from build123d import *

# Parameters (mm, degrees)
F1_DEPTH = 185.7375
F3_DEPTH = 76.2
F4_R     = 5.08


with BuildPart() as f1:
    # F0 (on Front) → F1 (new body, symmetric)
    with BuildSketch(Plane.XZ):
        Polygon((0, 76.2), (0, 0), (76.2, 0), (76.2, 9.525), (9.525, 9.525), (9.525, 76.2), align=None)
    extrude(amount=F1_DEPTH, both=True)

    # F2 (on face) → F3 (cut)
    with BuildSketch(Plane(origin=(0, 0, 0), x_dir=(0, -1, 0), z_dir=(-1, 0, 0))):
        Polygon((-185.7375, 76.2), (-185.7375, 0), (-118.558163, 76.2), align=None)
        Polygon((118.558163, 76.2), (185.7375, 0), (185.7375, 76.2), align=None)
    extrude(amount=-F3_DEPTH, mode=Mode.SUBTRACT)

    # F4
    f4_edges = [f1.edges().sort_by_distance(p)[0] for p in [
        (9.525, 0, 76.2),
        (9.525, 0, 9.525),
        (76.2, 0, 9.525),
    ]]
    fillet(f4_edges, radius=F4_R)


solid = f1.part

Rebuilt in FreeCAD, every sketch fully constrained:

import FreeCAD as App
import Part
import Sketcher

V = App.Vector
Q = App.Units.Quantity


def edges_at(feature, points):
    """Names of the edges that pass closest to the given points."""
    edges = feature.Shape.Edges
    near = lambda p: min(range(len(edges)), key=lambda i: edges[i].distToShape(Part.Vertex(*p))[0])
    return sorted({f"Edge{near(p) + 1}" for p in points})

doc = App.newDocument("Part")
body = doc.addObject("PartDesign::Body", "Body")

# Sketch on XZ plane
sketch1 = doc.addObject("Sketcher::SketchObject", "Sketch")
body.addObject(sketch1)
sketch1.AttachmentSupport = (doc.XZ_Plane, [""])
sketch1.MapMode = "FlatFace"
sketch1.addGeometry([
    Part.LineSegment(V(0, 76, 0), V(0, 0, 0)),  # 0
    Part.LineSegment(V(0, 0, 0), V(76, 0, 0)),  # 1
    Part.LineSegment(V(76, 0, 0), V(76, 10, 0)),  # 2
    Part.LineSegment(V(76, 10, 0), V(10, 10, 0)),  # 3
    Part.LineSegment(V(10, 10, 0), V(10, 76, 0)),  # 4
    Part.LineSegment(V(10, 76, 0), V(0, 76, 0)),  # 5
], False)
sketch1.addConstraint([
    Sketcher.Constraint("Coincident", 0, 2, 1, 1),
    Sketcher.Constraint("Coincident", 1, 2, 2, 1),
    Sketcher.Constraint("Coincident", 2, 2, 3, 1),
    Sketcher.Constraint("Coincident", 3, 2, 4, 1),
    Sketcher.Constraint("Coincident", 4, 2, 5, 1),
    Sketcher.Constraint("Coincident", 5, 2, 0, 1),
    Sketcher.Constraint("Vertical", 0),
    Sketcher.Constraint("Horizontal", 1),
    Sketcher.Constraint("Vertical", 2),
    Sketcher.Constraint("Horizontal", 3),
    Sketcher.Constraint("Vertical", 4),
    Sketcher.Constraint("Horizontal", 5),
    Sketcher.Constraint("Coincident", 0, 2, -1, 1),
    Sketcher.Constraint("Equal", 1, 0),
    Sketcher.Constraint("Equal", 5, 2),
    Sketcher.Constraint("DistanceX", 1, 1, 1, 2, Q("3 in")),
    Sketcher.Constraint("DistanceX", 3, 2, 3, 1, Q("2.625 in")),
])
pad1 = doc.addObject("PartDesign::Pad", "Pad")
body.addObject(pad1)
pad1.Profile = sketch1
pad1.Length = Q("14.625 in")
pad1.Midplane = True

# Sketch on YZ plane
sketch2 = doc.addObject("Sketcher::SketchObject", "Sketch001")
body.addObject(sketch2)
sketch2.AttachmentSupport = (doc.YZ_Plane, [""])
sketch2.MapMode = "FlatFace"
sketch2.addGeometry([
    Part.LineSegment(V(186, 76, 0), V(186, 0, 0)),  # 0
    Part.LineSegment(V(186, 0, 0), V(119, 76, 0)),  # 1
    Part.LineSegment(V(119, 76, 0), V(186, 76, 0)),  # 2
    Part.LineSegment(V(-119, 76, 0), V(-186, 0, 0)),  # 3
    Part.LineSegment(V(-186, 0, 0), V(-186, 76, 0)),  # 4
    Part.LineSegment(V(-186, 76, 0), V(-119, 76, 0)),  # 5
], False)
sketch2.addConstraint([
    Sketcher.Constraint("Coincident", 0, 2, 1, 1),
    Sketcher.Constraint("Coincident", 1, 2, 2, 1),
    Sketcher.Constraint("Coincident", 2, 2, 0, 1),
    Sketcher.Constraint("Coincident", 3, 2, 4, 1),
    Sketcher.Constraint("Coincident", 4, 2, 5, 1),
    Sketcher.Constraint("Coincident", 5, 2, 3, 1),
    Sketcher.Constraint("Vertical", 0),
    Sketcher.Constraint("Horizontal", 2),
    Sketcher.Constraint("Vertical", 4),
    Sketcher.Constraint("Horizontal", 5),
    Sketcher.Constraint("Symmetric", 0, 2, 3, 2, -1, 1),
    Sketcher.Constraint("Symmetric", 1, 2, 5, 2, -2),
    Sketcher.Constraint("PointOnObject", 0, 2, -1),
    Sketcher.Constraint("DistanceY", 0, 2, 0, 1, Q("3 in")),
    Sketcher.Constraint("Angle", 1, Q("131.4 deg")),
    Sketcher.Constraint("DistanceX", -1, 1, 0, 2, Q("7.3125 in")),
])
pocket1 = doc.addObject("PartDesign::Pocket", "Pocket")
body.addObject(pocket1)
pocket1.Profile = sketch2
pocket1.Length = Q("3 in")
pocket1.Reversed = True
doc.recompute()

fillet = doc.addObject("PartDesign::Fillet", "Fillet")
body.addObject(fillet)
fillet.Base = (pocket1, edges_at(pocket1, [(9.525, 0, 76.2), (9.525, 0, 9.525), (76.2, 0, 9.525)]))
fillet.Radius = Q("0.2 in")

doc.recompute()
